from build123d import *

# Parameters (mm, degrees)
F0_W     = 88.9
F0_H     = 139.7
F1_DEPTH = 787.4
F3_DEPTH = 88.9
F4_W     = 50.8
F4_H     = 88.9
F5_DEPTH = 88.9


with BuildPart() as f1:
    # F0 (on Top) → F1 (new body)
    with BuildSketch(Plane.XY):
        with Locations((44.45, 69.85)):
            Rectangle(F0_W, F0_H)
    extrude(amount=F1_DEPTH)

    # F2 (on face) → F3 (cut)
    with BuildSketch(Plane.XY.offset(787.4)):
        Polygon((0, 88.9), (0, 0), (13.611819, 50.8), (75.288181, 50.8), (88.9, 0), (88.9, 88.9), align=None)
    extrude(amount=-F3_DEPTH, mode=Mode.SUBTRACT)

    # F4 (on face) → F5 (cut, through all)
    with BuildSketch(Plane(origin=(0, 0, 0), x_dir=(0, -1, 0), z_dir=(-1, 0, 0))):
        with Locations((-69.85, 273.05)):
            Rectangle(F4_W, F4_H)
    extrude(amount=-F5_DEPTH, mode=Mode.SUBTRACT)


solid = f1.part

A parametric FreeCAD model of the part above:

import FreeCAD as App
import Part
import Sketcher
from FreeCAD import Vector
Q = App.Units.Quantity

doc = App.newDocument("Part")
body = doc.addObject("PartDesign::Body", "Body")

sketch1 = body.newObject("Sketcher::SketchObject", "Sketch")
sketch1.AttachmentSupport = (doc.getObject("XY_Plane"), [""])
sketch1.MapMode = "FlatFace"
sketch1.addGeometry(Part.LineSegment(Vector(0, 140, 0), Vector(0, 0, 0)), False)
sketch1.addGeometry(Part.LineSegment(Vector(0, 0, 0), Vector(89, 0, 0)), False)
sketch1.addGeometry(Part.LineSegment(Vector(89, 0, 0), Vector(89, 140, 0)), False)
sketch1.addGeometry(Part.LineSegment(Vector(89, 140, 0), Vector(0, 140, 0)), False)
sketch1.addConstraint(Sketcher.Constraint("Coincident", 0, 2, 1, 1))
sketch1.addConstraint(Sketcher.Constraint("Coincident", 1, 2, 2, 1))
sketch1.addConstraint(Sketcher.Constraint("Coincident", 2, 2, 3, 1))
sketch1.addConstraint(Sketcher.Constraint("Coincident", 3, 2, 0, 1))
sketch1.addConstraint(Sketcher.Constraint("Vertical", 0))
sketch1.addConstraint(Sketcher.Constraint("Horizontal", 1))
sketch1.addConstraint(Sketcher.Constraint("Vertical", 2))
sketch1.addConstraint(Sketcher.Constraint("Horizontal", 3))
sketch1.addConstraint(Sketcher.Constraint("Coincident", 0, 2, -1, 1))
sketch1.addConstraint(Sketcher.Constraint("DistanceX", 1, 1, 1, 2, Q("3.5 in")))
sketch1.addConstraint(Sketcher.Constraint("DistanceY", 0, 2, 0, 1, Q("5.5 in")))
pad1 = body.newObject("PartDesign::Pad", "Pad")
pad1.Profile = sketch1
pad1.Length = Q("31 in")

sketch2 = body.newObject("Sketcher::SketchObject", "Sketch001")
sketch2.AttachmentSupport = (doc.getObject("XY_Plane"), [""])
sketch2.MapMode = "FlatFace"
sketch2.AttachmentOffset = App.Placement(Vector(0, 0, 31 * 25.4), App.Rotation())
sketch2.addGeometry(Part.LineSegment(Vector(0, 89, 0), Vector(0, 0, 0)), False)
sketch2.addGeometry(Part.LineSegment(Vector(0, 0, 0), Vector(14, 51, 0)), False)
sketch2.addGeometry(Part.LineSegment(Vector(14, 51, 0), Vector(75, 51, 0)), False)
sketch2.addGeometry(Part.LineSegment(Vector(75, 51, 0), Vector(89, 0, 0)), False)
sketch2.addGeometry(Part.LineSegment(Vector(89, 0, 0), Vector(89, 89, 0)), False)
sketch2.addGeometry(Part.LineSegment(Vector(89, 89, 0), Vector(0, 89, 0)), False)
sketch2.addConstraint(Sketcher.Constraint("Coincident", 0, 2, 1, 1))
sketch2.addConstraint(Sketcher.Constraint("Coincident", 1, 2, 2, 1))
sketch2.addConstraint(Sketcher.Constraint("Coincident", 2, 2, 3, 1))
sketch2.addConstraint(Sketcher.Constraint("Coincident", 3, 2, 4, 1))
sketch2.addConstraint(Sketcher.Constraint("Coincident", 4, 2, 5, 1))
sketch2.addConstraint(Sketcher.Constraint("Coincident", 5, 2, 0, 1))
sketch2.addConstraint(Sketcher.Constraint("Vertical", 0))
sketch2.addConstraint(Sketcher.Constraint("Horizontal", 2))
sketch2.addConstraint(Sketcher.Constraint("Vertical", 4))
sketch2.addConstraint(Sketcher.Constraint("Horizontal", 5))
sketch2.addConstraint(Sketcher.Constraint("Coincident", 0, 2, -1, 1))
sketch2.addConstraint(Sketcher.Constraint("PointOnObject", 3, 2, -1))
sketch2.addConstraint(Sketcher.Constraint("Equal", 5, 0))
sketch2.addConstraint(Sketcher.Constraint("Equal", 1, 3))
sketch2.addConstraint(Sketcher.Constraint("DistanceX", 5, 2, 5, 1, Q("3.5 in")))
sketch2.addConstraint(Sketcher.Constraint("DistanceY", -1, 1, 1, 2, Q("2 in")))
sketch2.addConstraint(Sketcher.Constraint("Angle", 1, Q("75 deg")))
pocket1 = body.newObject("PartDesign::Pocket", "Pocket")
pocket1.Profile = sketch2
pocket1.Length = Q("3.5 in")

sketch3 = body.newObject("Sketcher::SketchObject", "Sketch002")
sketch3.AttachmentSupport = (doc.getObject("YZ_Plane"), [""])
sketch3.MapMode = "FlatFace"
sketch3.addGeometry(Part.LineSegment(Vector(95, 318, 0), Vector(95, 229, 0)), False)
sketch3.addGeometry(Part.LineSegment(Vector(95, 229, 0), Vector(44, 229, 0)), False)
sketch3.addGeometry(Part.LineSegment(Vector(44, 229, 0), Vector(44, 318, 0)), False)
sketch3.addGeometry(Part.LineSegment(Vector(44, 318, 0), Vector(95, 318, 0)), False)
sketch3.addConstraint(Sketcher.Constraint("Coincident", 0, 2, 1, 1))
sketch3.addConstraint(Sketcher.Constraint("Coincident", 1, 2, 2, 1))
sketch3.addConstraint(Sketcher.Constraint("Coincident", 2, 2, 3, 1))
sketch3.addConstraint(Sketcher.Constraint("Coincident", 3, 2, 0, 1))
sketch3.addConstraint(Sketcher.Constraint("Vertical", 0))
sketch3.addConstraint(Sketcher.Constraint("Horizontal", 1))
sketch3.addConstraint(Sketcher.Constraint("Vertical", 2))
sketch3.addConstraint(Sketcher.Constraint("Horizontal", 3))
sketch3.addConstraint(Sketcher.Constraint("DistanceX", 1, 2, 1, 1, Q("2 in")))
sketch3.addConstraint(Sketcher.Constraint("DistanceY", 0, 2, 0, 1, Q("3.5 in")))
sketch3.addConstraint(Sketcher.Constraint("DistanceY", -1, 1, 0, 2, Q("9 in")))
sketch3.addConstraint(Sketcher.Constraint("DistanceX", -1, 1, 0, 2, Q("3.75 in")))
pocket2 = body.newObject("PartDesign::Pocket", "Pocket001")
pocket2.Profile = sketch3
pocket2.Type = "ThroughAll"
pocket2.Reversed = True

doc.recompute()
